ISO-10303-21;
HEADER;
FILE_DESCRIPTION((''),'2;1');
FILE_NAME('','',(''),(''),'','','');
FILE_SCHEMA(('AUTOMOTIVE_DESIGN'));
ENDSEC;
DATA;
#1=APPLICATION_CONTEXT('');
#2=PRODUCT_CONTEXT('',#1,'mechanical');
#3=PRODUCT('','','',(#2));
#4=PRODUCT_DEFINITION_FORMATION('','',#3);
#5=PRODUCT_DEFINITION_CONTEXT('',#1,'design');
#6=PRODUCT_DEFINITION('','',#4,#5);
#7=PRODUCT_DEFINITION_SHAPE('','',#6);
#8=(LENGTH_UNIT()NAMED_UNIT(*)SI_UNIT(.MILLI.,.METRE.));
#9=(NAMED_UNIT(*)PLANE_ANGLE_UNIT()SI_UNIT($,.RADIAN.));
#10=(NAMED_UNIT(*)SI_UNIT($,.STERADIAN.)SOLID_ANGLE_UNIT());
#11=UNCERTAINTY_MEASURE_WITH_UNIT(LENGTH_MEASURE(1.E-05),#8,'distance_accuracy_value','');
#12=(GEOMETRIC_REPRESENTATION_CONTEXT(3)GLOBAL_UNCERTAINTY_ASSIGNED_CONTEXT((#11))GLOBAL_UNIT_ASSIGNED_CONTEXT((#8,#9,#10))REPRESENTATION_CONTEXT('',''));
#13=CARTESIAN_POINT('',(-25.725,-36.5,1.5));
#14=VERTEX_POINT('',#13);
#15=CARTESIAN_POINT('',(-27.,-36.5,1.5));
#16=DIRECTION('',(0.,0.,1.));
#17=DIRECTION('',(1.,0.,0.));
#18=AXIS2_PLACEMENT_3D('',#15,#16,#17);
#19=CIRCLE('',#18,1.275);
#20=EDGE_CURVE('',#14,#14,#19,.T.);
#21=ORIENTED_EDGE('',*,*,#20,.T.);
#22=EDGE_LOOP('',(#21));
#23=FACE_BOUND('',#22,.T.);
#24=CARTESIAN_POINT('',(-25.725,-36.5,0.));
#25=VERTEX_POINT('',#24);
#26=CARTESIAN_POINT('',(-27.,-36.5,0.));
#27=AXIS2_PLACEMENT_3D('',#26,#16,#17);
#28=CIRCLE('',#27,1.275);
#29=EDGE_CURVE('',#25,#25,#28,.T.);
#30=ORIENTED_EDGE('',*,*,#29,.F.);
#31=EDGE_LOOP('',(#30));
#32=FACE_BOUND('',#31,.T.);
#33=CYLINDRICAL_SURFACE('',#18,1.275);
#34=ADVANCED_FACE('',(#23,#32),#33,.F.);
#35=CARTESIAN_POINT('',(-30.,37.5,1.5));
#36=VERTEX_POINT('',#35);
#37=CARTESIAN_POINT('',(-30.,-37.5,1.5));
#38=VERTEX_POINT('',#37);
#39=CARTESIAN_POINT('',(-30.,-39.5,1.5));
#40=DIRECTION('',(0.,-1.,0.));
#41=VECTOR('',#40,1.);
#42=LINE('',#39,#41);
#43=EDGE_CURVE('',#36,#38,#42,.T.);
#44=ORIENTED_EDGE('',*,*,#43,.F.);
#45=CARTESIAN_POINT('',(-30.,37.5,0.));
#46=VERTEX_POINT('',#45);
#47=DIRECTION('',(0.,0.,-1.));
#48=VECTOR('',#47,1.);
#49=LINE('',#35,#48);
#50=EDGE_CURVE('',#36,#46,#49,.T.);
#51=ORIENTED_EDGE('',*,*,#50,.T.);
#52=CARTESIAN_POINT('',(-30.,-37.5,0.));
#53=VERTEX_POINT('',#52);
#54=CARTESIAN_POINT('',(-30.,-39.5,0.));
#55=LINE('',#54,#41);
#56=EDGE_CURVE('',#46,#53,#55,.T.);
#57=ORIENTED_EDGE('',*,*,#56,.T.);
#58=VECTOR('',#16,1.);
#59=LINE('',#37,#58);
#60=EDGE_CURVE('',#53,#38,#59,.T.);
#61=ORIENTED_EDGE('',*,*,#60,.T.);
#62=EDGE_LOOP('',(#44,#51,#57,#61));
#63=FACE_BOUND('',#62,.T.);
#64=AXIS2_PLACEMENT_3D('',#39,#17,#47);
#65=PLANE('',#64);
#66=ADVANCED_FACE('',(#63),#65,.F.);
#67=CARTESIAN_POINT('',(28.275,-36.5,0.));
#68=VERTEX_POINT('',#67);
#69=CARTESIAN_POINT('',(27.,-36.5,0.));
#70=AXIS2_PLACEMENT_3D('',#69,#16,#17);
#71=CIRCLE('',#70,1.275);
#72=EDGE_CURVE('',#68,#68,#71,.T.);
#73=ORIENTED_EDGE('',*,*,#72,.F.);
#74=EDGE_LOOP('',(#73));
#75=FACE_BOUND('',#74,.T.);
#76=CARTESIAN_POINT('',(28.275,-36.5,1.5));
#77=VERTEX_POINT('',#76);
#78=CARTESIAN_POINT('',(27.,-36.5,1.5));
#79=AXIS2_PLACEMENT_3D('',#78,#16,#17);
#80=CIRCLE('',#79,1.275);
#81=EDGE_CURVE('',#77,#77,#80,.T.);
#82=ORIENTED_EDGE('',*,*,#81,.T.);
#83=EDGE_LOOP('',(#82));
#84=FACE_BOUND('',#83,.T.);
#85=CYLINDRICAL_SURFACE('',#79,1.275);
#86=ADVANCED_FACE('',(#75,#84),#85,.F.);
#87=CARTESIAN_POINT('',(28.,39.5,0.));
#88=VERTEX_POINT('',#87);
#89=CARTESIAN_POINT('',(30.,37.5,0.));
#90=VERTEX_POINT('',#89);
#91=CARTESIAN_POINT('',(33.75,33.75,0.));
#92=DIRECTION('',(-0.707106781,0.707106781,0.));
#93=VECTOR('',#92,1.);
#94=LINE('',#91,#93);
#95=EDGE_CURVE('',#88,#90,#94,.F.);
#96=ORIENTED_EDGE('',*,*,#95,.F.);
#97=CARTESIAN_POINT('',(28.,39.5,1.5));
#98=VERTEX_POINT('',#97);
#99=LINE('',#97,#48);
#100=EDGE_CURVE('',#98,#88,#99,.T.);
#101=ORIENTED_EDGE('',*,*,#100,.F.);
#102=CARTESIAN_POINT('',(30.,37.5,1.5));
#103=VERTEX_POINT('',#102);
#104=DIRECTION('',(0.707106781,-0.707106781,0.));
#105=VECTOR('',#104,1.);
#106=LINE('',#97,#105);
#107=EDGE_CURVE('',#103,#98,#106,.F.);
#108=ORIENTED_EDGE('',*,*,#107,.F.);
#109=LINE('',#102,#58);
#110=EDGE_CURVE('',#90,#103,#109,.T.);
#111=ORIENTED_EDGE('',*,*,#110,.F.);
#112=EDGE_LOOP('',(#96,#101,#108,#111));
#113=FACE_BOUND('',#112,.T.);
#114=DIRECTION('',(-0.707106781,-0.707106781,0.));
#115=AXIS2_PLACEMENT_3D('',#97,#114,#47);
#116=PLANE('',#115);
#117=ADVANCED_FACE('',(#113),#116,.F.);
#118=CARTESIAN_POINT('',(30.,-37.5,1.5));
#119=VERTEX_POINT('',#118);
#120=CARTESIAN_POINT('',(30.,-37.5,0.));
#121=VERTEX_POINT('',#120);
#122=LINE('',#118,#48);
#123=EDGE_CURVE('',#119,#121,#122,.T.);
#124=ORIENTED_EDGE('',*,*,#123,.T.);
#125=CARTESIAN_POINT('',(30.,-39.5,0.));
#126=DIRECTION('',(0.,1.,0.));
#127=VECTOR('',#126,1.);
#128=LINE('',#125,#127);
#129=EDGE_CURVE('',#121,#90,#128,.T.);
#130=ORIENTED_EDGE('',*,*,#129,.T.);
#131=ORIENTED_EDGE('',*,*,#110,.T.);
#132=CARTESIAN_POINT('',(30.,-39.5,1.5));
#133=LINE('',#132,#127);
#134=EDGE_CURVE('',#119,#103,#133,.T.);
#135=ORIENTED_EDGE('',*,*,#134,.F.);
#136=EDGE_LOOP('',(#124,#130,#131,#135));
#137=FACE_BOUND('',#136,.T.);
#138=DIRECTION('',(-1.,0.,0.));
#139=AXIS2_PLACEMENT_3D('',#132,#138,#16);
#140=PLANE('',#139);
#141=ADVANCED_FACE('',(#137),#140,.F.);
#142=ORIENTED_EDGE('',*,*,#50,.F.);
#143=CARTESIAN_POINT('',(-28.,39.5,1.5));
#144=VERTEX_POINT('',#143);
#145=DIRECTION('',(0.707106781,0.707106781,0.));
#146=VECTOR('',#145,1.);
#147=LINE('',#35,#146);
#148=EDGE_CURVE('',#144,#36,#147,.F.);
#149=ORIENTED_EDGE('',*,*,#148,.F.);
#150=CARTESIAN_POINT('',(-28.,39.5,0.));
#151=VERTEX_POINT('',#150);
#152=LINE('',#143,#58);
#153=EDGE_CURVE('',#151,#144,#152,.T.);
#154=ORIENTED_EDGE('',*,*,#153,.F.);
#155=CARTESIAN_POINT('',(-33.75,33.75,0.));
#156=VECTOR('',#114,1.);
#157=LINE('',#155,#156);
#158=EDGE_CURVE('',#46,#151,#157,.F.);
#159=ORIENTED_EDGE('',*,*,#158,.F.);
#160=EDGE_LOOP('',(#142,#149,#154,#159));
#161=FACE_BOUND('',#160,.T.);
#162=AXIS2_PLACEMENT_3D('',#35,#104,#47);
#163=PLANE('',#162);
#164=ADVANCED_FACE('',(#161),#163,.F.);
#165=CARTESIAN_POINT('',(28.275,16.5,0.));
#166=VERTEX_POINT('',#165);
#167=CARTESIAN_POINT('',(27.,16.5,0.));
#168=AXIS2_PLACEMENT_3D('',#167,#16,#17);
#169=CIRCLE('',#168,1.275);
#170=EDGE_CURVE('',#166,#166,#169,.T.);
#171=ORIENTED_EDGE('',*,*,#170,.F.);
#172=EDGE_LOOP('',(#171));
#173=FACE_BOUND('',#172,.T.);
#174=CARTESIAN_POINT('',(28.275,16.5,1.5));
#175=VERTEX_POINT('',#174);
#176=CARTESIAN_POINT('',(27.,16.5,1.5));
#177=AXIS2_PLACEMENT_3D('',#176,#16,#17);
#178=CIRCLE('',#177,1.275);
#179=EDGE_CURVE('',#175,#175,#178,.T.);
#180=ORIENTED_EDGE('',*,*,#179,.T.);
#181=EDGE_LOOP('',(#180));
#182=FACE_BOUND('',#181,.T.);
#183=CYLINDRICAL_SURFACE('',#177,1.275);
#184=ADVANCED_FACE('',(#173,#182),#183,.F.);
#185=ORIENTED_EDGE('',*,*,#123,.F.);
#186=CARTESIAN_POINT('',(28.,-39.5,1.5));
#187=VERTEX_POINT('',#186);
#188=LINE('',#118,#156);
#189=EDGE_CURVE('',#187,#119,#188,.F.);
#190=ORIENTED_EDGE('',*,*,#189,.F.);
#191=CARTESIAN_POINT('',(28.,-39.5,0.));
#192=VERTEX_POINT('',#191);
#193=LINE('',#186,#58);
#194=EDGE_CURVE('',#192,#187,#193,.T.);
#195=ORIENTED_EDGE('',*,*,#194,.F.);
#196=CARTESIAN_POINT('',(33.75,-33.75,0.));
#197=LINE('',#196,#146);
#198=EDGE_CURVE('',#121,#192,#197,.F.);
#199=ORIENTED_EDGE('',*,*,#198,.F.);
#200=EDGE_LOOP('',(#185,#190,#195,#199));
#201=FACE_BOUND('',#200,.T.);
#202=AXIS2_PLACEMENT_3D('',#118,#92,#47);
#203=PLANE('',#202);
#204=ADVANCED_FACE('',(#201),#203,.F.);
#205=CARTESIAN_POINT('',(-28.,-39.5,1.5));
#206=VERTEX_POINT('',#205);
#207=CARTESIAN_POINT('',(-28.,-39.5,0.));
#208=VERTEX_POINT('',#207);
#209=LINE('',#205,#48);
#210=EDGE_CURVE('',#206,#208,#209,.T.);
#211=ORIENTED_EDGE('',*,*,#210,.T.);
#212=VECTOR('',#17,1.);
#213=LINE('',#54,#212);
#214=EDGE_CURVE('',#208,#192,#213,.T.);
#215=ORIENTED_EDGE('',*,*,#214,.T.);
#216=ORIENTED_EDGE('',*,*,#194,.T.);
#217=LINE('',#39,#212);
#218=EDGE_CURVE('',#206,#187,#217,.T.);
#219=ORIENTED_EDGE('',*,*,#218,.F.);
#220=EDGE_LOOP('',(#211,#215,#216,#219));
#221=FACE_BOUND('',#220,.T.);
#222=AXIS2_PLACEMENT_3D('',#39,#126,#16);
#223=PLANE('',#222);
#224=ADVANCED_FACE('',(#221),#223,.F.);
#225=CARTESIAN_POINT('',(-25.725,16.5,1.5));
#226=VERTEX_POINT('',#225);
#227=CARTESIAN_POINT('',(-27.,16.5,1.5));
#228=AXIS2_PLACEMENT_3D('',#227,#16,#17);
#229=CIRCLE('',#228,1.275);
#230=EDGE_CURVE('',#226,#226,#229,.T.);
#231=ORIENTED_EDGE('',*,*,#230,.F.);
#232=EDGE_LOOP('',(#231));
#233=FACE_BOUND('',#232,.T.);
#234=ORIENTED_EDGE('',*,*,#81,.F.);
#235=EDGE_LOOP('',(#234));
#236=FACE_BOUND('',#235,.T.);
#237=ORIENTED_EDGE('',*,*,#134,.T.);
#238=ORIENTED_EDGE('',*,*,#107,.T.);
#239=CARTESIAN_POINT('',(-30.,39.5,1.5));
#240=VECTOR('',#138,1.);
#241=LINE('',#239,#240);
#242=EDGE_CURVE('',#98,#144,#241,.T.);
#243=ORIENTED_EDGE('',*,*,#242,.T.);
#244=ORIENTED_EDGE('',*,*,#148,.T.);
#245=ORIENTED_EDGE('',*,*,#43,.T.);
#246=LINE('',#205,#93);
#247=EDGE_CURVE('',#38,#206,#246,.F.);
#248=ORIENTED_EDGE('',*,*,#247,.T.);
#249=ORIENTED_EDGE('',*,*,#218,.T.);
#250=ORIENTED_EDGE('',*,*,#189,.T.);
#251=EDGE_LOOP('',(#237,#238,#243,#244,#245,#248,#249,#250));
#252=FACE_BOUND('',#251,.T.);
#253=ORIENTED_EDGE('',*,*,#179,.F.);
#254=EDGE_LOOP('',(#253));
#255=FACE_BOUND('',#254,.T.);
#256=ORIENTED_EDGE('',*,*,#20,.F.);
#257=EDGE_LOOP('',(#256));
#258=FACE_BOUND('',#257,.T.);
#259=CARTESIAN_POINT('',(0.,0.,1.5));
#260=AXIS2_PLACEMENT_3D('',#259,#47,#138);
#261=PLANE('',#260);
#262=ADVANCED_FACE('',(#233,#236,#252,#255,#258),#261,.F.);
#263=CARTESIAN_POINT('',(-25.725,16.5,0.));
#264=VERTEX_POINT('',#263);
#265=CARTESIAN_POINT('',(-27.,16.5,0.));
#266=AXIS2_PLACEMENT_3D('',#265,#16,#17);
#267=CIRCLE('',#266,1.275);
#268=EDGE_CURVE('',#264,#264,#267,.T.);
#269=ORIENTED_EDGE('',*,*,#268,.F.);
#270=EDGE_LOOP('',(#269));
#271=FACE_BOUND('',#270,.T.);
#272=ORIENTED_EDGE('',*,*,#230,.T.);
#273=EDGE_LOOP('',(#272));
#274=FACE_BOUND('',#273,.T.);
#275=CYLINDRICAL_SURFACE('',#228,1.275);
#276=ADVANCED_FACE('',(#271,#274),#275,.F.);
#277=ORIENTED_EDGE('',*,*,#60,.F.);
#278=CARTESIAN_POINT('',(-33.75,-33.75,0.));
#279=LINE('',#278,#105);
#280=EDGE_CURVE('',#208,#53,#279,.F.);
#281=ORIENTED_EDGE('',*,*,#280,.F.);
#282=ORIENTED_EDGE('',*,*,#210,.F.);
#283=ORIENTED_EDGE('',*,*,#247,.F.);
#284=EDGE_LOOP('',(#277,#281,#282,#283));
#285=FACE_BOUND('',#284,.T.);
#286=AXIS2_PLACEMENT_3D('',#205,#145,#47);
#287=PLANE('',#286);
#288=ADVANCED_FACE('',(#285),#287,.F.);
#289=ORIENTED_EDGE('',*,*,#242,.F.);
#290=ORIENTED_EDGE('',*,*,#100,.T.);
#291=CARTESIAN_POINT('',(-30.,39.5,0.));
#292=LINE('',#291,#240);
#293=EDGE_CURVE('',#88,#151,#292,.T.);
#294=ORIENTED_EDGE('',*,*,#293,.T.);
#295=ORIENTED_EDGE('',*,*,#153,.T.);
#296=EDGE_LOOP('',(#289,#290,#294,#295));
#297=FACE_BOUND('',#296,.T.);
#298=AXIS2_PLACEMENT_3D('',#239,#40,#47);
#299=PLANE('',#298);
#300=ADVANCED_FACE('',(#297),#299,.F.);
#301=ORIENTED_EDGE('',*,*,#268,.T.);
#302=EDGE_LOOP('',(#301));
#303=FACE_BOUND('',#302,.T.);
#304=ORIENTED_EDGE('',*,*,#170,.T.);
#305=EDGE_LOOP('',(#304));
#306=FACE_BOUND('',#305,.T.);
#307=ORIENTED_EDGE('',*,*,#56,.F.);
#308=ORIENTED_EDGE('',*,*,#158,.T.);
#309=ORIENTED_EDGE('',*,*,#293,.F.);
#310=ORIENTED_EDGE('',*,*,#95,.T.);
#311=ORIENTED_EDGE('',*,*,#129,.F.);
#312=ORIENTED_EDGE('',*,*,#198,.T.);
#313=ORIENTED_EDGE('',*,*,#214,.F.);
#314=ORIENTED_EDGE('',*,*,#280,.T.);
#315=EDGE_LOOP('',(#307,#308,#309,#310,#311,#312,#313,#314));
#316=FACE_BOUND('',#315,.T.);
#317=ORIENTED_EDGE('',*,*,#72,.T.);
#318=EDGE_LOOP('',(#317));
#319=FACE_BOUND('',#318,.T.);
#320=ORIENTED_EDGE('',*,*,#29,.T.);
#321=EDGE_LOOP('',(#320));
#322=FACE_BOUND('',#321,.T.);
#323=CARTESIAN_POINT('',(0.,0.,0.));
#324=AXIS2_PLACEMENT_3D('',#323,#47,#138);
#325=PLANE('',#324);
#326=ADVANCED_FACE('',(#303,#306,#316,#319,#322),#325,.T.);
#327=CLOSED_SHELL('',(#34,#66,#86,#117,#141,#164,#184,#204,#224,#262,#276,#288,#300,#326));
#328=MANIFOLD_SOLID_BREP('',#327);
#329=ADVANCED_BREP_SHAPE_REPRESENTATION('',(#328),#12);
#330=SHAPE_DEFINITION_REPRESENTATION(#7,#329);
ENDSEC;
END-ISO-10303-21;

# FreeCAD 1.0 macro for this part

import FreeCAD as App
import Part
import Sketcher
from FreeCAD import Vector
Q = App.Units.Quantity


def edges_at(feature, points):
    """Names of the edges that pass closest to the given points."""
    edges = feature.Shape.Edges
    near = lambda p: min(range(len(edges)), key=lambda i: edges[i].distToShape(Part.Vertex(*p))[0])
    return sorted({f"Edge{near(p) + 1}" for p in points})


def add_polygon(sketch, points):
    """Adds a closed chain of lines whose ends are joined by coincident constraints."""
    first, n = sketch.GeometryCount, len(points)
    for a, b in zip(points, points[1:] + points[:1]):
        sketch.addGeometry(Part.LineSegment(App.Vector(*a, 0), App.Vector(*b, 0)), False)
    for i in range(n):
        sketch.addConstraint(Sketcher.Constraint("Coincident", first + i, 2, first + (i + 1) % n, 1))

doc = App.newDocument("Part")
body = doc.addObject("PartDesign::Body", "Body")

# Sketch on XY plane
sketch1 = body.newObject("Sketcher::SketchObject", "Sketch")
sketch1.AttachmentSupport = (doc.getObject("XY_Plane"), [""])
sketch1.MapMode = "FlatFace"
add_polygon(sketch1, [(-30, 39.5), (-30, -39.5), (30, -39.5), (30, 39.5)])  # lines 0-3
sketch1.addConstraint([
    Sketcher.Constraint("Vertical", 0),
    Sketcher.Constraint("Horizontal", 1),
    Sketcher.Constraint("Vertical", 2),
    Sketcher.Constraint("Horizontal", 3),
    Sketcher.Constraint("Symmetric", 0, 2, 2, 2, -1, 1),
    Sketcher.Constraint("DistanceX", 1, 1, 1, 2, Q("60 mm")),
    Sketcher.Constraint("DistanceY", 0, 2, 0, 1, Q("79 mm")),
])
pad1 = body.newObject("PartDesign::Pad", "Pad")
pad1.Profile = sketch1
pad1.Length = 1.5
doc.recompute()

chamfer = body.newObject("PartDesign::Chamfer", "Chamfer")
chamfer.Base = (pad1, edges_at(pad1, [
    (30, -39.5, 0.75),
    (-30, -39.5, 0.75),
    (-30, 39.5, 0.75),
    (30, 39.5, 0.75),
]))
chamfer.Size = 2

# Sketch on XY plane
sketch2 = body.newObject("Sketcher::SketchObject", "Sketch001")
sketch2.AttachmentSupport = (doc.getObject("XY_Plane"), [""])
sketch2.MapMode = "FlatFace"
sketch2.AttachmentOffset = App.Placement(Vector(0, 0, 1.5), App.Rotation())
sketch2.addGeometry([
    Part.Circle(Vector(-27, 16.5, 0), Vector(0, 0, 1), 1.275),
    Part.Circle(Vector(27, 16.5, 0), Vector(0, 0, 1), 1.275),
    Part.Circle(Vector(27, -36.5, 0), Vector(0, 0, 1), 1.275),
    Part.Circle(Vector(-27, -36.5, 0), Vector(0, 0, 1), 1.275),
], False)
sketch2.addConstraint([
    Sketcher.Constraint("Equal", 0, 1),
    Sketcher.Constraint("Equal", 1, 2),
    Sketcher.Constraint("Equal", 2, 3),
    Sketcher.Constraint("Symmetric", 0, 3, 1, 3, -2),
    Sketcher.Constraint("Symmetric", 2, 3, 3, 3, -2),
    Sketcher.Constraint("Vertical", 1, 3, 2, 3),
    Sketcher.Constraint("Diameter", 0, Q("2.55 mm")),
    Sketcher.Constraint("DistanceX", 0, 3, -1, 1, Q("27 mm")),
    Sketcher.Constraint("DistanceY", 2, 3, 1, 3, Q("53 mm")),
    Sketcher.Constraint("DistanceY", -1, 1, 0, 3, Q("16.5 mm")),
])
doc.recompute()
hole = body.newObject("PartDesign::Hole", "Hole")
hole.Profile = sketch2
hole.ThreadType = "None"
hole.Diameter = 2.55
hole.DepthType = "ThroughAll"

doc.recompute()
